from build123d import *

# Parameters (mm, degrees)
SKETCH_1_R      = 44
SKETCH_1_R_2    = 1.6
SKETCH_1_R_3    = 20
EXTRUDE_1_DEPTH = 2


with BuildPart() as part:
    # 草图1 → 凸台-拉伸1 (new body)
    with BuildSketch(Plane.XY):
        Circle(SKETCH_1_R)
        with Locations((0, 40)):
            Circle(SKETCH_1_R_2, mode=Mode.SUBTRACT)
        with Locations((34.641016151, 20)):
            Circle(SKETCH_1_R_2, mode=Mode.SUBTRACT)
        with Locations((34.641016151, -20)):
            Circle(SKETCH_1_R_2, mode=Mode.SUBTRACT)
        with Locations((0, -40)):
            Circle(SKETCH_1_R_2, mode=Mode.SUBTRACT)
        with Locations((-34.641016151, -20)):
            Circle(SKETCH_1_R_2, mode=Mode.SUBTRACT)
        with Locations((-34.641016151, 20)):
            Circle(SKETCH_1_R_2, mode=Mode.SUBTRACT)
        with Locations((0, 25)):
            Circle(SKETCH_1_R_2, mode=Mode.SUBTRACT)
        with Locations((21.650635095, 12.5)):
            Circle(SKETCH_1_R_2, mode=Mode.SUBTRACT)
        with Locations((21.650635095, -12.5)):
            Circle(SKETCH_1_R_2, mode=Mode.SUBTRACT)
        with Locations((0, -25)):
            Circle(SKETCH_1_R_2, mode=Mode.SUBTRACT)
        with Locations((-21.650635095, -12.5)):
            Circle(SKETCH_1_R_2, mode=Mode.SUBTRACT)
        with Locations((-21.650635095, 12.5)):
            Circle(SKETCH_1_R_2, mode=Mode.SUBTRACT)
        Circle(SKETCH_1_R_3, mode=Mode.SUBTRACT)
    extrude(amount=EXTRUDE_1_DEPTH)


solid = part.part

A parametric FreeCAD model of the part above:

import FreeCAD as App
import Part
import Sketcher

V = App.Vector
Q = App.Units.Quantity

doc = App.newDocument("Part")
params = doc.addObject("Spreadsheet::Sheet", "Params")
for row, (alias, value) in enumerate([
    ("sketch1_diameter", "88 mm"),
    ("sketch1_diameter2", "40 mm"),
    ("sketch1_diameter3", "3.2 mm"),
    ("pad1_length", "2 mm"),
], start=1):
    params.set(f"A{row}", alias)
    params.set(f"B{row}", "=" + value)
    params.setAlias(f"B{row}", alias)

body = doc.addObject("PartDesign::Body", "Body")

# Sketch on XY plane
sketch1 = body.newObject("Sketcher::SketchObject", "Sketch")
sketch1.AttachmentSupport = (doc.getObject("XY_Plane"), [""])
sketch1.MapMode = "FlatFace"
sketch1.addGeometry([
    Part.Circle(V(0, 0, 0), V(0, 0, 1), 44),  # 0
    Part.Circle(V(-34.6, -20, 0), V(0, 0, 1), 1.6),  # 1
    Part.Circle(V(-21.7, -12.5, 0), V(0, 0, 1), 1.6),  # 2
    Part.Circle(V(0, -40, 0), V(0, 0, 1), 1.6),  # 3
    Part.Circle(V(0, -25, 0), V(0, 0, 1), 1.6),  # 4
    Part.Circle(V(21.7, -12.5, 0), V(0, 0, 1), 1.6),  # 5
    Part.Circle(V(34.6, -20, 0), V(0, 0, 1), 1.6),  # 6
    Part.Circle(V(-34.6, 20, 0), V(0, 0, 1), 1.6),  # 7
    Part.Circle(V(-21.7, 12.5, 0), V(0, 0, 1), 1.6),  # 8
    Part.Circle(V(0, 0, 0), V(0, 0, 1), 20),  # 9
    Part.Circle(V(21.7, 12.5, 0), V(0, 0, 1), 1.6),  # 10
    Part.Circle(V(34.6, 20, 0), V(0, 0, 1), 1.6),  # 11
    Part.Circle(V(0, 25, 0), V(0, 0, 1), 1.6),  # 12
    Part.Circle(V(0, 40, 0), V(0, 0, 1), 1.6),  # 13
], False)
sketch1.addConstraint([
    Sketcher.Constraint("Coincident", 0, 3, -1, 1),
    Sketcher.Constraint("Coincident", 9, 3, -1, 1),
    Sketcher.Constraint("Equal", 1, 2),
    Sketcher.Constraint("Equal", 2, 3),
    Sketcher.Constraint("Equal", 3, 4),
    Sketcher.Constraint("Equal", 4, 5),
    Sketcher.Constraint("Equal", 5, 6),
    Sketcher.Constraint("Equal", 6, 7),
    Sketcher.Constraint("Equal", 7, 8),
    Sketcher.Constraint("Equal", 8, 10),
    Sketcher.Constraint("Equal", 10, 11),
    Sketcher.Constraint("Equal", 11, 12),
    Sketcher.Constraint("Equal", 12, 13),
    Sketcher.Constraint("Symmetric", 6, 3, 7, 3, -1, 1),
    Sketcher.Constraint("Symmetric", 5, 3, 8, 3, -1, 1),
    Sketcher.Constraint("Symmetric", 2, 3, 10, 3, -1, 1),
    Sketcher.Constraint("Symmetric", 1, 3, 11, 3, -1, 1),
    Sketcher.Constraint("Symmetric", 4, 3, 12, 3, -1, 1),
    Sketcher.Constraint("Symmetric", 3, 3, 13, 3, -1, 1),
    Sketcher.Constraint("Symmetric", 2, 3, 5, 3, -2),
    Sketcher.Constraint("Symmetric", 1, 3, 6, 3, -2),
    Sketcher.Constraint("PointOnObject", 3, 3, -2),
    Sketcher.Constraint("PointOnObject", 4, 3, -2),
    Sketcher.Constraint("Diameter", 0, Q("88 mm")),
    Sketcher.Constraint("Diameter", 9, Q("40 mm")),
    Sketcher.Constraint("Diameter", 1, Q("3.2 mm")),
    Sketcher.Constraint("DistanceY", 1, 3, -1, 1, Q("20 mm")),
    Sketcher.Constraint("DistanceY", 3, 3, -1, 1, Q("40 mm")),
    Sketcher.Constraint("DistanceY", 4, 3, -1, 1, Q("25 mm")),
    Sketcher.Constraint("DistanceY", 2, 3, 8, 3, Q("25 mm")),
    Sketcher.Constraint("DistanceX", 1, 3, 2, 3, Q("12.990381 mm")),
    Sketcher.Constraint("DistanceX", 2, 3, 5, 3, Q("43.30127 mm")),
])
sketch1.setExpression("Constraints[23]", "Params.sketch1_diameter")
sketch1.setExpression("Constraints[24]", "Params.sketch1_diameter2")
sketch1.setExpression("Constraints[25]", "Params.sketch1_diameter3")
pad1 = body.newObject("PartDesign::Pad", "Pad")
pad1.Profile = sketch1
pad1.setExpression("Length", "Params.pad1_length")

doc.recompute()
